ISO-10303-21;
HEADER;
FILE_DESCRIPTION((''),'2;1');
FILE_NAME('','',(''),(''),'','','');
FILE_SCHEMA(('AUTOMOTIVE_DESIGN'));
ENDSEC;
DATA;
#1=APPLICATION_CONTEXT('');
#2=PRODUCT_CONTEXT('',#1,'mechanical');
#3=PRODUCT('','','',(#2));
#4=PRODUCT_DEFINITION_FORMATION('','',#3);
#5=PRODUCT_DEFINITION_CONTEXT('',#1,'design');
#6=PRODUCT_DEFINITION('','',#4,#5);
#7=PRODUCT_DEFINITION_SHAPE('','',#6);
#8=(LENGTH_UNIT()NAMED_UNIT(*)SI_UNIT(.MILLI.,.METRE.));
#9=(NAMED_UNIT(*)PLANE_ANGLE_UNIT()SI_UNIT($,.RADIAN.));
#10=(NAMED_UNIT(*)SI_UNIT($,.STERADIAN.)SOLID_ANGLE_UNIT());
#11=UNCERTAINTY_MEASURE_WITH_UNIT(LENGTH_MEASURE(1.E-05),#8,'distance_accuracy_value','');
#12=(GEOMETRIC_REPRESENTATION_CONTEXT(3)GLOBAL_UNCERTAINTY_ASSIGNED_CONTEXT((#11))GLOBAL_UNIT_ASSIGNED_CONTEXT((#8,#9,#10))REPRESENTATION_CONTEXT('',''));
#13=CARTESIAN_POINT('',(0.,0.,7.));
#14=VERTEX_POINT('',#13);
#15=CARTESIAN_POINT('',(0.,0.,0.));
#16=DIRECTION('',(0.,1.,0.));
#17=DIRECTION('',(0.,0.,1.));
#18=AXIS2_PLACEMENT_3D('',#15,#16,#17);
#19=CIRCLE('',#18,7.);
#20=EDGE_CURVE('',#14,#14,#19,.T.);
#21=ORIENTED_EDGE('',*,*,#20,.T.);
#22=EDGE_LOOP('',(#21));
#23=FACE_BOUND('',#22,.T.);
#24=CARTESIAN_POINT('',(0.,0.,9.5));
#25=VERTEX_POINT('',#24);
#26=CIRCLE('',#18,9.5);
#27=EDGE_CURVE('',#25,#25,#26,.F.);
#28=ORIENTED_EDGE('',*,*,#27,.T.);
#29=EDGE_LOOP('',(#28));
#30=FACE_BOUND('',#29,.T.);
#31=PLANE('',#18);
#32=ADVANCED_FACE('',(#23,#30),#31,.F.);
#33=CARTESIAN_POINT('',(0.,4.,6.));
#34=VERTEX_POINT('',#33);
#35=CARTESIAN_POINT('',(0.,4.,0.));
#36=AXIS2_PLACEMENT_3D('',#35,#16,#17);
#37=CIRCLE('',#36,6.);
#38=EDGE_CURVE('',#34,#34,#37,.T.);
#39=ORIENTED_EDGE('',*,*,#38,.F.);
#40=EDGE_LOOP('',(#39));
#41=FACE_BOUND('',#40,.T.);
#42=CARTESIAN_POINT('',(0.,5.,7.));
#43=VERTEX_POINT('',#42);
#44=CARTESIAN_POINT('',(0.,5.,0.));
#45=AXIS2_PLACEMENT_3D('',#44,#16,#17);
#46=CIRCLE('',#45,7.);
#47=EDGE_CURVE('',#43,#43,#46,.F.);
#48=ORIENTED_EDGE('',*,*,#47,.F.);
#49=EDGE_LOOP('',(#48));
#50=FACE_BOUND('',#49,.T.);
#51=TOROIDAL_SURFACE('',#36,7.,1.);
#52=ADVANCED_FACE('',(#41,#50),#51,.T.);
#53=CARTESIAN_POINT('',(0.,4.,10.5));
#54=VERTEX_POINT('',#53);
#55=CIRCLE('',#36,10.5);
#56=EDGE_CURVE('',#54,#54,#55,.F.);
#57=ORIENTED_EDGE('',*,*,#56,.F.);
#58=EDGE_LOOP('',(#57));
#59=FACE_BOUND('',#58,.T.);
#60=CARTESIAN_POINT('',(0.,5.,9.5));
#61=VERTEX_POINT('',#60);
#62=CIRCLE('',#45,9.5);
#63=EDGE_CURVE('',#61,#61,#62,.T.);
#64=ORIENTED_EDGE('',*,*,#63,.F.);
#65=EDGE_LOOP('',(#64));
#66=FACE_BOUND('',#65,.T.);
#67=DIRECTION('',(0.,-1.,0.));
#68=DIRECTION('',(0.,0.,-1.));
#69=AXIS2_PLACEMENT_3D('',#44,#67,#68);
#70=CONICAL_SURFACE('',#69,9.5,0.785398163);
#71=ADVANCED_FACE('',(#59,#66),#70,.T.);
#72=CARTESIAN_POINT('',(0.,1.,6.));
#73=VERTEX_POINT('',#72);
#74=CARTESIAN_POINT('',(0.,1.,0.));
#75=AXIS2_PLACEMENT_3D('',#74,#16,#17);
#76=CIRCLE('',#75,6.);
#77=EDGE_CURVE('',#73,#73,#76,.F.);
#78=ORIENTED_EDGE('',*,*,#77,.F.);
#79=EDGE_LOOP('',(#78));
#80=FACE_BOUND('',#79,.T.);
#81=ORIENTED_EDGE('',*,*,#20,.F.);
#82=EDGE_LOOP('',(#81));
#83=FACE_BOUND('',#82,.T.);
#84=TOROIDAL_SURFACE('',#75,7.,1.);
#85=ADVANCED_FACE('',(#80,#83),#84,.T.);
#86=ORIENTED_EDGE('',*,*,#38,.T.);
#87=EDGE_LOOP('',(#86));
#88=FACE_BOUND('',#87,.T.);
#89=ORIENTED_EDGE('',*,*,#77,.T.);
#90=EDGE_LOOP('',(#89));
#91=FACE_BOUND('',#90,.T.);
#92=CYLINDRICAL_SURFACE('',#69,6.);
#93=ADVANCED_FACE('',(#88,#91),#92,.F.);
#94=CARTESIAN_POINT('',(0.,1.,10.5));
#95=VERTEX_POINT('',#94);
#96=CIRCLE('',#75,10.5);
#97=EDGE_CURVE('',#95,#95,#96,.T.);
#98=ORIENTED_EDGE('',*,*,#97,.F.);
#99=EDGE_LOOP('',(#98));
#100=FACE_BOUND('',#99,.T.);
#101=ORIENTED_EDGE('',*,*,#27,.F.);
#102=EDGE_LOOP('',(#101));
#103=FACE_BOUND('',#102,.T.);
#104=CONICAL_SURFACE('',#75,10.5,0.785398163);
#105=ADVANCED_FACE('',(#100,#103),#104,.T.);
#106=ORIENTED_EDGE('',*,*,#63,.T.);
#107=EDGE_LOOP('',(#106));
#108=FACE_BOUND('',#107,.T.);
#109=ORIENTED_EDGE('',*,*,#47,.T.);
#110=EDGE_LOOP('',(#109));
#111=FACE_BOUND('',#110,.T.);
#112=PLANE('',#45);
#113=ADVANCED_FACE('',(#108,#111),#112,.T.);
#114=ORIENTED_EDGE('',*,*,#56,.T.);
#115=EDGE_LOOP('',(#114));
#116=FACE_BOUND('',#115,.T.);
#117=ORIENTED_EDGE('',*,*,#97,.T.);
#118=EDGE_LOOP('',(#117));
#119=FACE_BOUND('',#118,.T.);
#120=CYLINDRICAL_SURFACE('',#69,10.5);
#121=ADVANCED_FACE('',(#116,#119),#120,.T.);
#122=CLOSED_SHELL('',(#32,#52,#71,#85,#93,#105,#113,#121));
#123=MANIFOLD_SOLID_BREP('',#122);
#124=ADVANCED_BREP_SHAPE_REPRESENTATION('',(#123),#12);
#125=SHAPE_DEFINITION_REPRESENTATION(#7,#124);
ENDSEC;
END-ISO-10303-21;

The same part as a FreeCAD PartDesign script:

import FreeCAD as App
import Part
import Sketcher
from FreeCAD import Vector


def edges_at(feature, points):
    """Names of the edges that pass closest to the given points."""
    edges = feature.Shape.Edges
    near = lambda p: min(range(len(edges)), key=lambda i: edges[i].distToShape(Part.Vertex(*p))[0])
    return sorted({f"Edge{near(p) + 1}" for p in points})

doc = App.newDocument("Part")
params = doc.addObject("Spreadsheet::Sheet", "Params")
for row, (alias, value) in enumerate([
    ("sketch1_diameter", "21 mm"),
    ("sketch1_diameter2", "12 mm"),
    ("pad1_length", "5 mm"),
    ("fillet_radius", "1 mm"),
    ("chamfer_size", "1 mm"),
], start=1):
    params.set(f"A{row}", alias)
    params.set(f"B{row}", "=" + value)
    params.setAlias(f"B{row}", alias)

body = doc.addObject("PartDesign::Body", "Body")

# Sketch on XZ plane
sketch1 = doc.addObject("Sketcher::SketchObject", "Sketch")
body.addObject(sketch1)
sketch1.AttachmentSupport = (doc.XZ_Plane, [""])
sketch1.MapMode = "FlatFace"
sketch1.addGeometry([
    Part.Circle(Vector(0, 0, 0), Vector(0, 0, 1), 10),
    Part.Circle(Vector(0, 0, 0), Vector(0, 0, 1), 6),
], False)
sketch1.addConstraint([
    Sketcher.Constraint("Coincident", 0, 3, -1, 1),
    Sketcher.Constraint("Coincident", 1, 3, -1, 1),
    Sketcher.Constraint("Diameter", 0, 21.0),
    Sketcher.Constraint("Diameter", 1, 12.0),
])
sketch1.setExpression("Constraints[2]", "Params.sketch1_diameter")
sketch1.setExpression("Constraints[3]", "Params.sketch1_diameter2")
pad1 = doc.addObject("PartDesign::Pad", "Pad")
body.addObject(pad1)
pad1.Profile = sketch1
pad1.setExpression("Length", "Params.pad1_length")
pad1.Reversed = True
doc.recompute()

fillet = doc.addObject("PartDesign::Fillet", "Fillet")
body.addObject(fillet)
fillet.Base = (pad1, edges_at(pad1, [(-6, 0, 0), (-6, 5, 0)]))
fillet.setExpression("Radius", "Params.fillet_radius")
doc.recompute()

chamfer = doc.addObject("PartDesign::Chamfer", "Chamfer")
body.addObject(chamfer)
chamfer.Base = (fillet, edges_at(fillet, [(-10.5, 0, 0), (-10.5, 5, 0)]))
chamfer.setExpression("Size", "Params.chamfer_size")

doc.recompute()
